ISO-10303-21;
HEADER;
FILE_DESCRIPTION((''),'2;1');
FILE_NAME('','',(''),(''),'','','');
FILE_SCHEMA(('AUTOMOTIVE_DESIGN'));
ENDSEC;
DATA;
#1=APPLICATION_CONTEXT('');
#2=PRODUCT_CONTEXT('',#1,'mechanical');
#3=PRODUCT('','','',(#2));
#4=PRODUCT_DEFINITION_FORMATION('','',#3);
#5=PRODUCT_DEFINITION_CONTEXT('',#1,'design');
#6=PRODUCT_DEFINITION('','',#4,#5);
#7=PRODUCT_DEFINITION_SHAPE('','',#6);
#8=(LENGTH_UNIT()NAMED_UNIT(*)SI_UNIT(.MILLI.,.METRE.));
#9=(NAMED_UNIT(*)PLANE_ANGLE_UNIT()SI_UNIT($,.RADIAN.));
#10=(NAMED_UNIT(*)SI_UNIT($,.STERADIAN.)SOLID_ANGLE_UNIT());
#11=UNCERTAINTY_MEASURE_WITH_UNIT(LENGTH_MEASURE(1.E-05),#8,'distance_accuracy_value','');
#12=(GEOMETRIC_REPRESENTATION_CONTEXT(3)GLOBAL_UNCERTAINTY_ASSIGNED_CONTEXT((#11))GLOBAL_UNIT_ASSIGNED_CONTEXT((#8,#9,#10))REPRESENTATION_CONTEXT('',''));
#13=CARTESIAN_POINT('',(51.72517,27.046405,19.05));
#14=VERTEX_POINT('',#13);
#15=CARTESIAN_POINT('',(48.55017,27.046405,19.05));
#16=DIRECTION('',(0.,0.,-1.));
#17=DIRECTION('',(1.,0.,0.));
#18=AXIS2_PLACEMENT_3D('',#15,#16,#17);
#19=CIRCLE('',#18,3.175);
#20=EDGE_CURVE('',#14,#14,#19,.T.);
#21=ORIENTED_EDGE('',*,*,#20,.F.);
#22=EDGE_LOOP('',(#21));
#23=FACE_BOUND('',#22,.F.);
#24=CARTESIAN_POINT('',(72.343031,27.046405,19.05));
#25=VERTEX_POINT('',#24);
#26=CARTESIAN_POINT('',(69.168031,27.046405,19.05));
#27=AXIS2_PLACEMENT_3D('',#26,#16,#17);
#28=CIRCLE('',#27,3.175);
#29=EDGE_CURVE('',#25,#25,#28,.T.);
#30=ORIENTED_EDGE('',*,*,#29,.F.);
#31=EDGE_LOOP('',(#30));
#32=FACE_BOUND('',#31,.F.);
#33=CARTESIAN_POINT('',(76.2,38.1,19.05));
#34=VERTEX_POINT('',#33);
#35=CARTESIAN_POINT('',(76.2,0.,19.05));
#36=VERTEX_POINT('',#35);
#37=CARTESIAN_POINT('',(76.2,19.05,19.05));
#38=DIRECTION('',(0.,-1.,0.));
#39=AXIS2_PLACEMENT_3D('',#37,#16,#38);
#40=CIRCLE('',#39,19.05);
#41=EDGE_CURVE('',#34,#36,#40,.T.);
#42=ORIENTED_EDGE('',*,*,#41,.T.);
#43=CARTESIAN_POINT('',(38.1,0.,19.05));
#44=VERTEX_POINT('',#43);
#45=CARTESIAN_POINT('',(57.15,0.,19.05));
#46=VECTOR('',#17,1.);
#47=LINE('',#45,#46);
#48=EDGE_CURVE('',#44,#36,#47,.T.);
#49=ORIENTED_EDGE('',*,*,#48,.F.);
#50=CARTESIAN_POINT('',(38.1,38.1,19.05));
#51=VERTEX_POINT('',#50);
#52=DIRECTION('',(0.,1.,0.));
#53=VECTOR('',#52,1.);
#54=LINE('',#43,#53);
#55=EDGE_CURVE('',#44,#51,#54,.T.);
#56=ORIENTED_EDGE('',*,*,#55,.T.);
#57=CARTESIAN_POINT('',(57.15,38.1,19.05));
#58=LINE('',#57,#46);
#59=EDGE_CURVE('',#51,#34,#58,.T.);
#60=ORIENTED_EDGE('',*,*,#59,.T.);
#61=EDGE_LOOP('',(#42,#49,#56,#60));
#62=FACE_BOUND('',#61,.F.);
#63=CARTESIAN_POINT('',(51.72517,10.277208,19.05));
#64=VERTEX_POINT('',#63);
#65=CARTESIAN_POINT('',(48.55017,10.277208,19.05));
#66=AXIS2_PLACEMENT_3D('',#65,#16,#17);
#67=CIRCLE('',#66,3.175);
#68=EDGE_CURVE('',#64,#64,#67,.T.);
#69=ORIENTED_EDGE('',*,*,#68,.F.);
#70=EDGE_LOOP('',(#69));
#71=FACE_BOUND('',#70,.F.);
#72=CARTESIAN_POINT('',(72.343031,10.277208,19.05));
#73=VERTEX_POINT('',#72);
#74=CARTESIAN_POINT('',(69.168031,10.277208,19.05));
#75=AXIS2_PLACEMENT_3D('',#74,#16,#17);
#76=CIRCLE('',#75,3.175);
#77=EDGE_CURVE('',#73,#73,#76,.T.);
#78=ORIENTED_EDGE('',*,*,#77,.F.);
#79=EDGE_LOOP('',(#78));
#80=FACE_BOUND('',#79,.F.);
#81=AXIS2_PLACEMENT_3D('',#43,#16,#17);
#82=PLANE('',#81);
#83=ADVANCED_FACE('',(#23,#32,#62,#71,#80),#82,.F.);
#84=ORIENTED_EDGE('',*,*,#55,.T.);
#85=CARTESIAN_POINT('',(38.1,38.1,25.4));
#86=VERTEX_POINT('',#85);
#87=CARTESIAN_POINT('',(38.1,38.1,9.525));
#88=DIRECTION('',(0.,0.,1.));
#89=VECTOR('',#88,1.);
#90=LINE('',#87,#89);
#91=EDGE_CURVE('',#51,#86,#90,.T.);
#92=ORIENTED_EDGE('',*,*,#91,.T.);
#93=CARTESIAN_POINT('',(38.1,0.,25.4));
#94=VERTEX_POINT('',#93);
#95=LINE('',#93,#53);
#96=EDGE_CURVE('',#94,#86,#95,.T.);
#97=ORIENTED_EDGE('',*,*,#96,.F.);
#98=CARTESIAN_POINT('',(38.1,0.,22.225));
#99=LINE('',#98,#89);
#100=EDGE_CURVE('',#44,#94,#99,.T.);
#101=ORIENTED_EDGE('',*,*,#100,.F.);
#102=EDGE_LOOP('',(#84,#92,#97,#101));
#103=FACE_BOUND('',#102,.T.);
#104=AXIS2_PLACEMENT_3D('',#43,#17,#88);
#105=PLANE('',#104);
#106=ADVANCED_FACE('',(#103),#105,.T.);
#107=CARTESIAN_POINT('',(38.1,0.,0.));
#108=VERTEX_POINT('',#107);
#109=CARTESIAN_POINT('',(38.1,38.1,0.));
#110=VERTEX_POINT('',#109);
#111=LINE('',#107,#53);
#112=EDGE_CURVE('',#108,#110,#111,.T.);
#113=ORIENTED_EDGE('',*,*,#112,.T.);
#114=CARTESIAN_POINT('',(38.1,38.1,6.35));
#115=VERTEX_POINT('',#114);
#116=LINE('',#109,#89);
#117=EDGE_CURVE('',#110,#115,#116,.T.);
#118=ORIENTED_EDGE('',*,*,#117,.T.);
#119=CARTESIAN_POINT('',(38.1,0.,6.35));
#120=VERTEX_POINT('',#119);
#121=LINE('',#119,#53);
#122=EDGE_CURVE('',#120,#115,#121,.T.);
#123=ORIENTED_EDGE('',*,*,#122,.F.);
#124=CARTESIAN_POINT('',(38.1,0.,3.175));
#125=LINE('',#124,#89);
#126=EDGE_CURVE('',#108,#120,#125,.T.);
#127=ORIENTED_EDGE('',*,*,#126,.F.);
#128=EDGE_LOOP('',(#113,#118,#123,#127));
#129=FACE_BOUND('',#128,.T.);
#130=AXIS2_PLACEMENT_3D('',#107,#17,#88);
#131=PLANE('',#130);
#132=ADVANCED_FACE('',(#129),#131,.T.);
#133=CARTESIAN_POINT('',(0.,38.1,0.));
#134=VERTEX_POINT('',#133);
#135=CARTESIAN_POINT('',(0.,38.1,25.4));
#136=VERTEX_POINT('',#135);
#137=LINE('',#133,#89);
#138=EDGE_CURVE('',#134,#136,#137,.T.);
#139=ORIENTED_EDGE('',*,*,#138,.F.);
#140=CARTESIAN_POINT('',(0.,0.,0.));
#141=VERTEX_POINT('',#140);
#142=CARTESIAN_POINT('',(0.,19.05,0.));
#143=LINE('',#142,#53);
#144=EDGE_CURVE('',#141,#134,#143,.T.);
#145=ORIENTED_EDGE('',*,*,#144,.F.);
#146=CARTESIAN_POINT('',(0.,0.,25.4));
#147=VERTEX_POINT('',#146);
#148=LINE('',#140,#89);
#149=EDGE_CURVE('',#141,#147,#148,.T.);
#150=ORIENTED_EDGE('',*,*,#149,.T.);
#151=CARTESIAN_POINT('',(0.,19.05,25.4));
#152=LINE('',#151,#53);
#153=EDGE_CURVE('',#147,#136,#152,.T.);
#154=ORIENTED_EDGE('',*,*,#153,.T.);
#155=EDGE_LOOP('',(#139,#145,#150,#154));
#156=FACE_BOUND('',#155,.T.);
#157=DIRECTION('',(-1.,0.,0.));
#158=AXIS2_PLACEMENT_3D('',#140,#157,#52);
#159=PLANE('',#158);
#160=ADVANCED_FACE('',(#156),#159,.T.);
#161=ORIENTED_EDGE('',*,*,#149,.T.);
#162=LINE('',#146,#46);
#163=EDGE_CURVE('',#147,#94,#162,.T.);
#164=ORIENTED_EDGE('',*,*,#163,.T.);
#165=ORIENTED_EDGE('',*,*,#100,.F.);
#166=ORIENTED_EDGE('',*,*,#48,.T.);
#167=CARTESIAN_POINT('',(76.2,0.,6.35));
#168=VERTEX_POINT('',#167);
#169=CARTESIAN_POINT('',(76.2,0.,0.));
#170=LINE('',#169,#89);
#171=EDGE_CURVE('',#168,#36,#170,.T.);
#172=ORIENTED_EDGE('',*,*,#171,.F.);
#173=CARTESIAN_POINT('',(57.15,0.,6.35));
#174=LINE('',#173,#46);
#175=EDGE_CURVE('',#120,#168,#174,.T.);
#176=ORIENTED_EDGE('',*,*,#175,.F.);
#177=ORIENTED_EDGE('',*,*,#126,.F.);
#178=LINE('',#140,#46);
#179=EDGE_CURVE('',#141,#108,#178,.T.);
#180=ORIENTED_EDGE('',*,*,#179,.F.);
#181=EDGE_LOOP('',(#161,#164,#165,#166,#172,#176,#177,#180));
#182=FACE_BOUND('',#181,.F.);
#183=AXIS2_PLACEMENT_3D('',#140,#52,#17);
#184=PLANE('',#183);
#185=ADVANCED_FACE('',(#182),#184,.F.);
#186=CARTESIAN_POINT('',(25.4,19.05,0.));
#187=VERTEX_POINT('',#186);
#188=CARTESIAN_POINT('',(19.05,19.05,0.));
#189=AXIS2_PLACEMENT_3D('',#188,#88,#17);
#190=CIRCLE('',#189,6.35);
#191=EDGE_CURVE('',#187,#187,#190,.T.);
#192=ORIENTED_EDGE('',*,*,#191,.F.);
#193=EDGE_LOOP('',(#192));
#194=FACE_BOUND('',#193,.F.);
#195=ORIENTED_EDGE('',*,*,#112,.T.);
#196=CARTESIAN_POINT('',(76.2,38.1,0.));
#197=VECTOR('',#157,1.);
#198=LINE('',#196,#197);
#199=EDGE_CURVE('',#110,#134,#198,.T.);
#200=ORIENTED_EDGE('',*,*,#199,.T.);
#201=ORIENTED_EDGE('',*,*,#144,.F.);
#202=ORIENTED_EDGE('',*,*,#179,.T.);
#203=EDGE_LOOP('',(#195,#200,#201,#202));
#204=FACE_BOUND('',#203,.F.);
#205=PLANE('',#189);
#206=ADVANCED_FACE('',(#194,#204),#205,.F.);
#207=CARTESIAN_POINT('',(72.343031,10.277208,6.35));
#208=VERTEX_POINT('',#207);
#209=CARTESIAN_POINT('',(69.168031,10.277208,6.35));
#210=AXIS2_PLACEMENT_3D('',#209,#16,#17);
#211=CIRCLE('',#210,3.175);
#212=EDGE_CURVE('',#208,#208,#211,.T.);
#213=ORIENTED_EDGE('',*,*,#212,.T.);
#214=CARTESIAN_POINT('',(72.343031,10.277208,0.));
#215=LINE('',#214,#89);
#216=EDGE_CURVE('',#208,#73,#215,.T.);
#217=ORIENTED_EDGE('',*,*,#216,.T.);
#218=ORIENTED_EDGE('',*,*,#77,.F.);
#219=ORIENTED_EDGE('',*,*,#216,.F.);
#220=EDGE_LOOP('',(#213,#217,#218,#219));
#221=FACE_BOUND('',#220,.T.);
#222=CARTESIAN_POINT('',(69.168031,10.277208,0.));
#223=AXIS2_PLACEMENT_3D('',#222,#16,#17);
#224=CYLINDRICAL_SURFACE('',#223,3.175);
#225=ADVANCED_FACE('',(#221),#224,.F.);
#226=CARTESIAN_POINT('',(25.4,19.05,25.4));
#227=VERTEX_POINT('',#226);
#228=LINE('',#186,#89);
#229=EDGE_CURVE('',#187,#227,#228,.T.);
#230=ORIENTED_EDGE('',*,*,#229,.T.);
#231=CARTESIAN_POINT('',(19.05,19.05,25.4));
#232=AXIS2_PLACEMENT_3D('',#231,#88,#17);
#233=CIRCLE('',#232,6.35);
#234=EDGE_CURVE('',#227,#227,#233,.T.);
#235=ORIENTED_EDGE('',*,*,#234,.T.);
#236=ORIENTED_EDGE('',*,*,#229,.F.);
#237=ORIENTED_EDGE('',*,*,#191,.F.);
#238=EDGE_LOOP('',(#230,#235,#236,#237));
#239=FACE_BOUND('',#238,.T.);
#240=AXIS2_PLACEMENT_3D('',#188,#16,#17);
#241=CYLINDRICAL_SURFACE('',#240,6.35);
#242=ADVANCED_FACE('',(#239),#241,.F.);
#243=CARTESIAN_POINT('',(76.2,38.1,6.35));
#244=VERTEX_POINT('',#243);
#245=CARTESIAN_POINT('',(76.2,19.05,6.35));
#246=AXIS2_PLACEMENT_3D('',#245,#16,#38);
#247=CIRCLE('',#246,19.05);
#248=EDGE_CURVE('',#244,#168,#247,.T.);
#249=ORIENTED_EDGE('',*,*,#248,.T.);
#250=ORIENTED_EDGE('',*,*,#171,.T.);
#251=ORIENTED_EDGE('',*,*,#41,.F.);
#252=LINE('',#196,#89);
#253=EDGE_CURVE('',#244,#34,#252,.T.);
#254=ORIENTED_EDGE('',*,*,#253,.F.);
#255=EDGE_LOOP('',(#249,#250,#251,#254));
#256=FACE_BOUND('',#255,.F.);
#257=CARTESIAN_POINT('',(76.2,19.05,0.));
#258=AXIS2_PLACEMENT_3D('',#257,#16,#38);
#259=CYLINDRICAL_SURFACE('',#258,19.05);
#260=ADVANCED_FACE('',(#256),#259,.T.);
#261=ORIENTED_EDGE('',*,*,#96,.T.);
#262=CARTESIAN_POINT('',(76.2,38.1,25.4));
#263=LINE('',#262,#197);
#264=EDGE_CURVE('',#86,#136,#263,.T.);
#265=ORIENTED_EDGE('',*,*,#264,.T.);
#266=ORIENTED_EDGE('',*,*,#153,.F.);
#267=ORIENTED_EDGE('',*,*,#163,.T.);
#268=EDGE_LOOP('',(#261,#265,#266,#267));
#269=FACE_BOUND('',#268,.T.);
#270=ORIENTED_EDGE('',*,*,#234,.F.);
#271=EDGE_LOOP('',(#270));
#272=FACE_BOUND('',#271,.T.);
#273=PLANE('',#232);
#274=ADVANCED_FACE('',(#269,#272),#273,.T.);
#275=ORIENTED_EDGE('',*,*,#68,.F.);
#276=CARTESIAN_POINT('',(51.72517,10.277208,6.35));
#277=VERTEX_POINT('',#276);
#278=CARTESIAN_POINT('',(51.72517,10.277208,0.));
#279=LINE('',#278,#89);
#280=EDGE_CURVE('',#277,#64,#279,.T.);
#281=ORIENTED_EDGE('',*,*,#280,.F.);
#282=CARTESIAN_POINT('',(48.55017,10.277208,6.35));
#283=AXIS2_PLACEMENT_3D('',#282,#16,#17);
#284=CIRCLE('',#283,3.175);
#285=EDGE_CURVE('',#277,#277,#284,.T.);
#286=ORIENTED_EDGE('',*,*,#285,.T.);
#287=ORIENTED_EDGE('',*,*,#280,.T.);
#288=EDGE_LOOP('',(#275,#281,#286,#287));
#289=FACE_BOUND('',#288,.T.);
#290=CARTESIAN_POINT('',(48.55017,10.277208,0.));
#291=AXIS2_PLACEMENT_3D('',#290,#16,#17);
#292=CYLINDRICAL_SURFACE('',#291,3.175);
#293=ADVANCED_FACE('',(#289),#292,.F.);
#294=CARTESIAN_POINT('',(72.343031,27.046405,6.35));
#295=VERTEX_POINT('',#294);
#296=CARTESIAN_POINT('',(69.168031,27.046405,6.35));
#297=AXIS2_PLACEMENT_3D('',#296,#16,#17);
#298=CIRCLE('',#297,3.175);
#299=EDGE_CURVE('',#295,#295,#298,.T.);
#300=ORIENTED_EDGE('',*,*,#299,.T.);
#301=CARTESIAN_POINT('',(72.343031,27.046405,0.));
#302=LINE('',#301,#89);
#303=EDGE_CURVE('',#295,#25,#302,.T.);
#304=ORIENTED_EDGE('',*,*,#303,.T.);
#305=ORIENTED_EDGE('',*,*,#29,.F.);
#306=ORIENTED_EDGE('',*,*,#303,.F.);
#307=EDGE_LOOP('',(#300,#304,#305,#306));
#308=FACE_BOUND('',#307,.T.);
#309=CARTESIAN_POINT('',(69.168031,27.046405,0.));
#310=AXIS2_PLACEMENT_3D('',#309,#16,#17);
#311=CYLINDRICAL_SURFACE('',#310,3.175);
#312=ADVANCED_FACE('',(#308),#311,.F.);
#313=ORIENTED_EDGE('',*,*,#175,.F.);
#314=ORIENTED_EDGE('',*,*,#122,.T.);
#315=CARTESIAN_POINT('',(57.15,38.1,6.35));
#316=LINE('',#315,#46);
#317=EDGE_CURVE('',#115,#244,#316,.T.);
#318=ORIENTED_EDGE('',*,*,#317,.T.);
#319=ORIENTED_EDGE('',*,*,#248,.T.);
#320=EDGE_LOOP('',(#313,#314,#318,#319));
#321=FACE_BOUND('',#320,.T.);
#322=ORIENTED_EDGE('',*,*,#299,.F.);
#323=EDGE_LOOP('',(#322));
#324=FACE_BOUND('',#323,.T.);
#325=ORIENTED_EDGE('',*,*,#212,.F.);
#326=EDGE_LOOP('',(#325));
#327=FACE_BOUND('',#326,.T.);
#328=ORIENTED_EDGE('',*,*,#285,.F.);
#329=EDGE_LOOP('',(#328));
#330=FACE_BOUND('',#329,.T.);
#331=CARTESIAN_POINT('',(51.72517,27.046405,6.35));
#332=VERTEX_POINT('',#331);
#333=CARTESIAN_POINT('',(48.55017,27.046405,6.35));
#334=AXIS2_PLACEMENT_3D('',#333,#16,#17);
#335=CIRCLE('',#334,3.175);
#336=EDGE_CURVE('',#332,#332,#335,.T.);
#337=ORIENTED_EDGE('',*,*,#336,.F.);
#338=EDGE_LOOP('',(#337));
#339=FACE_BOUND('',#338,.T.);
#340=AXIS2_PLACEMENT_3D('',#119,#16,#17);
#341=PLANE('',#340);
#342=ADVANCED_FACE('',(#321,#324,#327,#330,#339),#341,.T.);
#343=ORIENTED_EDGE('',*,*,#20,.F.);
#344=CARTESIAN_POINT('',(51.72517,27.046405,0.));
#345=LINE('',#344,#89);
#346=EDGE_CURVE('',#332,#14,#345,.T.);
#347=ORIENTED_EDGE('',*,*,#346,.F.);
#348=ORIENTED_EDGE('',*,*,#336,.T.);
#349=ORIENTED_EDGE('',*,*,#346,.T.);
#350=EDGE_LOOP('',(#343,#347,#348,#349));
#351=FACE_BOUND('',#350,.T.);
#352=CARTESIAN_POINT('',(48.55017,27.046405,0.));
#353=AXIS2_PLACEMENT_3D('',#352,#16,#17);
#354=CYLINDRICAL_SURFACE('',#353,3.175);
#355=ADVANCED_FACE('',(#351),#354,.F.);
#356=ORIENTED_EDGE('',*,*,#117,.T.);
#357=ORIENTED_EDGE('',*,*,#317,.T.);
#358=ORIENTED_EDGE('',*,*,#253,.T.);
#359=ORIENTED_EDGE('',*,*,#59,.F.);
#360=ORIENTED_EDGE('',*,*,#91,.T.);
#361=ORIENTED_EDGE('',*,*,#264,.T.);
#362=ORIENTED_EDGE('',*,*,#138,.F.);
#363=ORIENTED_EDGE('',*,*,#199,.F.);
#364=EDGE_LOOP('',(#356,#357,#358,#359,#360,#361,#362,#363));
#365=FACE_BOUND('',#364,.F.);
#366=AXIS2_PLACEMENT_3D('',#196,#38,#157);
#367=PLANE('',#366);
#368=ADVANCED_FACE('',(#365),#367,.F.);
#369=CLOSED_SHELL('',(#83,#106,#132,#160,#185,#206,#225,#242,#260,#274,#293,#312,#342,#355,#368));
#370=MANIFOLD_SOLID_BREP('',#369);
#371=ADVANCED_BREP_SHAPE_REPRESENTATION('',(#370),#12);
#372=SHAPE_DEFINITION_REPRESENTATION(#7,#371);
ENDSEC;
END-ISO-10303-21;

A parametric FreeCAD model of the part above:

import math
import FreeCAD as App
import Part
import Sketcher

V = App.Vector
Q = App.Units.Quantity

doc = App.newDocument("Part")
params = doc.addObject("Spreadsheet::Sheet", "Params")
for row, (alias, value) in enumerate([
    ("sketch1_diameter", "0.5 in"),
    ("sketch1_diameter2", "0.25 in"),
    ("sketch1_width", "3 in"),
    ("sketch1_radius", "0.75 in"),
    ("pad1_length", "1 in"),
    ("sketch2_width", "1.5 in"),
    ("sketch2_height", "0.25 in"),
    ("sketch3_height", "0.25 in"),
], start=1):
    params.set(f"A{row}", alias)
    params.set(f"B{row}", "=" + value)
    params.setAlias(f"B{row}", alias)

body = doc.addObject("PartDesign::Body", "Body")

# Sketch on XY plane
sketch1 = body.newObject("Sketcher::SketchObject", "Sketch")
sketch1.AttachmentSupport = (doc.getObject("XY_Plane"), [""])
sketch1.MapMode = "FlatFace"
sketch1.addGeometry(Part.LineSegment(V(0, 38.1, 0), V(0, 0, 0)), False)
sketch1.addGeometry(Part.LineSegment(V(0, 0, 0), V(76.2, 0, 0)), False)
sketch1.addGeometry(Part.ArcOfCircle(Part.Circle(V(76.2, 19.05, 0), V(0, 0, 1), 19.05), math.radians(-90), math.radians(90)), False)
sketch1.addGeometry(Part.LineSegment(V(76.2, 38.1, 0), V(0, 38.1, 0)), False)
sketch1.addGeometry(Part.Circle(V(48.55017, 10.277208, 0), V(0, 0, 1), 3.175), False)
sketch1.addGeometry(Part.Circle(V(69.168031, 10.277208, 0), V(0, 0, 1), 3.175), False)
sketch1.addGeometry(Part.Circle(V(19.05, 19.05, 0), V(0, 0, 1), 6.35), False)
sketch1.addGeometry(Part.Circle(V(48.55017, 27.046405, 0), V(0, 0, 1), 3.175), False)
sketch1.addGeometry(Part.Circle(V(69.168031, 27.046405, 0), V(0, 0, 1), 3.175), False)
sketch1.addConstraint(Sketcher.Constraint("Coincident", 0, 2, 1, 1))
sketch1.addConstraint(Sketcher.Constraint("Tangent", 1, 2, 2, 1))
sketch1.addConstraint(Sketcher.Constraint("Tangent", 2, 2, 3, 1))
sketch1.addConstraint(Sketcher.Constraint("Coincident", 3, 2, 0, 1))
sketch1.addConstraint(Sketcher.Constraint("Vertical", 0))
sketch1.addConstraint(Sketcher.Constraint("Horizontal", 1))
sketch1.addConstraint(Sketcher.Constraint("Horizontal", 3))
sketch1.addConstraint(Sketcher.Constraint("Coincident", 0, 2, -1, 1))
sketch1.addConstraint(Sketcher.Constraint("Equal", 4, 5))
sketch1.addConstraint(Sketcher.Constraint("Equal", 5, 7))
sketch1.addConstraint(Sketcher.Constraint("Equal", 7, 8))
sketch1.addConstraint(Sketcher.Constraint("Horizontal", 4, 3, 5, 3))
sketch1.addConstraint(Sketcher.Constraint("Horizontal", 2, 3, 6, 3))
sketch1.addConstraint(Sketcher.Constraint("Horizontal", 7, 3, 8, 3))
sketch1.addConstraint(Sketcher.Constraint("Vertical", 4, 3, 7, 3))
sketch1.addConstraint(Sketcher.Constraint("Vertical", 5, 3, 8, 3))
sketch1.addConstraint(Sketcher.Constraint("Diameter", 6, Q("0.5 in")))
sketch1.addConstraint(Sketcher.Constraint("Diameter", 4, Q("0.25 in")))
sketch1.addConstraint(Sketcher.Constraint("DistanceX", 1, 1, 1, 2, Q("3 in")))
sketch1.addConstraint(Sketcher.Constraint("Radius", 2, Q("0.75 in")))
sketch1.addConstraint(Sketcher.Constraint("DistanceX", -1, 1, 6, 3, Q("0.75 in")))
sketch1.addConstraint(Sketcher.Constraint("DistanceX", -1, 1, 4, 3, Q("48.55017 mm")))
sketch1.addConstraint(Sketcher.Constraint("DistanceX", -1, 1, 5, 3, Q("69.168031 mm")))
sketch1.addConstraint(Sketcher.Constraint("DistanceY", 5, 3, 2, 2, Q("27.822792 mm")))
sketch1.addConstraint(Sketcher.Constraint("DistanceY", -1, 1, 7, 3, Q("27.046405 mm")))
sketch1.setExpression("Constraints[16]", "Params.sketch1_diameter")
sketch1.setExpression("Constraints[17]", "Params.sketch1_diameter2")
sketch1.setExpression("Constraints[18]", "Params.sketch1_width")
sketch1.setExpression("Constraints[19]", "Params.sketch1_radius")
pad1 = body.newObject("PartDesign::Pad", "Pad")
pad1.Profile = sketch1
pad1.setExpression("Length", "Params.pad1_length")

# Sketch on XZ plane
sketch2 = body.newObject("Sketcher::SketchObject", "Sketch001")
sketch2.AttachmentSupport = (doc.getObject("XZ_Plane"), [""])
sketch2.MapMode = "FlatFace"
sketch2.addGeometry(Part.LineSegment(V(38.1, 25.4, 0), V(38.1, 19.05, 0)), False)
sketch2.addGeometry(Part.LineSegment(V(38.1, 19.05, 0), V(76.2, 19.05, 0)), False)
sketch2.addGeometry(Part.LineSegment(V(76.2, 19.05, 0), V(76.2, 25.4, 0)), False)
sketch2.addGeometry(Part.LineSegment(V(76.2, 25.4, 0), V(38.1, 25.4, 0)), False)
sketch2.addGeometry(Part.LineSegment(V(38.1, 6.35, 0), V(38.1, 0, 0)), False)
sketch2.addGeometry(Part.LineSegment(V(38.1, 0, 0), V(76.2, 0, 0)), False)
sketch2.addGeometry(Part.LineSegment(V(76.2, 0, 0), V(76.2, 6.35, 0)), False)
sketch2.addGeometry(Part.LineSegment(V(76.2, 6.35, 0), V(38.1, 6.35, 0)), False)
sketch2.addConstraint(Sketcher.Constraint("Coincident", 0, 2, 1, 1))
sketch2.addConstraint(Sketcher.Constraint("Coincident", 1, 2, 2, 1))
sketch2.addConstraint(Sketcher.Constraint("Coincident", 2, 2, 3, 1))
sketch2.addConstraint(Sketcher.Constraint("Coincident", 3, 2, 0, 1))
sketch2.addConstraint(Sketcher.Constraint("Coincident", 4, 2, 5, 1))
sketch2.addConstraint(Sketcher.Constraint("Coincident", 5, 2, 6, 1))
sketch2.addConstraint(Sketcher.Constraint("Coincident", 6, 2, 7, 1))
sketch2.addConstraint(Sketcher.Constraint("Coincident", 7, 2, 4, 1))
sketch2.addConstraint(Sketcher.Constraint("Vertical", 0))
sketch2.addConstraint(Sketcher.Constraint("Horizontal", 1))
sketch2.addConstraint(Sketcher.Constraint("Vertical", 2))
sketch2.addConstraint(Sketcher.Constraint("Horizontal", 3))
sketch2.addConstraint(Sketcher.Constraint("Vertical", 4))
sketch2.addConstraint(Sketcher.Constraint("Horizontal", 5))
sketch2.addConstraint(Sketcher.Constraint("Vertical", 6))
sketch2.addConstraint(Sketcher.Constraint("Horizontal", 7))
sketch2.addConstraint(Sketcher.Constraint("PointOnObject", 4, 2, -1))
sketch2.addConstraint(Sketcher.Constraint("Vertical", 3, 2, 4, 2))
sketch2.addConstraint(Sketcher.Constraint("Vertical", 2, 2, 5, 2))
sketch2.addConstraint(Sketcher.Constraint("Equal", 2, 4))
sketch2.addConstraint(Sketcher.Constraint("DistanceX", 1, 1, 1, 2, Q("1.5 in")))
sketch2.addConstraint(Sketcher.Constraint("DistanceX", -1, 1, 1, 2, Q("3 in")))
sketch2.addConstraint(Sketcher.Constraint("DistanceY", -1, 1, 2, 2, Q("1 in")))
sketch2.addConstraint(Sketcher.Constraint("DistanceY", 0, 2, 0, 1, Q("0.25 in")))
sketch2.setExpression("Constraints[20]", "Params.sketch2_width")
sketch2.setExpression("Constraints[23]", "Params.sketch2_height")
pocket1 = body.newObject("PartDesign::Pocket", "Pocket")
pocket1.Profile = sketch2
pocket1.Type = "ThroughAll"

# Sketch on XZ plane
sketch3 = body.newObject("Sketcher::SketchObject", "Sketch002")
sketch3.AttachmentSupport = (doc.getObject("XZ_Plane"), [""])
sketch3.MapMode = "FlatFace"
sketch3.addGeometry(Part.LineSegment(V(76.2, 25.503032, 0), V(76.2, 19.05, 0)), False)
sketch3.addGeometry(Part.LineSegment(V(76.2, 19.05, 0), V(95.365852, 19.05, 0)), False)
sketch3.addGeometry(Part.LineSegment(V(95.365852, 19.05, 0), V(95.365852, 25.503032, 0)), False)
sketch3.addGeometry(Part.LineSegment(V(95.365852, 25.503032, 0), V(76.2, 25.503032, 0)), False)
sketch3.addGeometry(Part.LineSegment(V(76.2, 6.35, 0), V(76.2, 0, 0)), False)
sketch3.addGeometry(Part.LineSegment(V(76.2, 0, 0), V(95.365852, 0, 0)), False)
sketch3.addGeometry(Part.LineSegment(V(95.365852, 0, 0), V(95.365852, 6.35, 0)), False)
sketch3.addGeometry(Part.LineSegment(V(95.365852, 6.35, 0), V(76.2, 6.35, 0)), False)
sketch3.addConstraint(Sketcher.Constraint("Coincident", 0, 2, 1, 1))
sketch3.addConstraint(Sketcher.Constraint("Coincident", 1, 2, 2, 1))
sketch3.addConstraint(Sketcher.Constraint("Coincident", 2, 2, 3, 1))
sketch3.addConstraint(Sketcher.Constraint("Coincident", 3, 2, 0, 1))
sketch3.addConstraint(Sketcher.Constraint("Coincident", 4, 2, 5, 1))
sketch3.addConstraint(Sketcher.Constraint("Coincident", 5, 2, 6, 1))
sketch3.addConstraint(Sketcher.Constraint("Coincident", 6, 2, 7, 1))
sketch3.addConstraint(Sketcher.Constraint("Coincident", 7, 2, 4, 1))
sketch3.addConstraint(Sketcher.Constraint("Vertical", 0))
sketch3.addConstraint(Sketcher.Constraint("Horizontal", 1))
sketch3.addConstraint(Sketcher.Constraint("Vertical", 2))
sketch3.addConstraint(Sketcher.Constraint("Horizontal", 3))
sketch3.addConstraint(Sketcher.Constraint("Vertical", 4))
sketch3.addConstraint(Sketcher.Constraint("Horizontal", 5))
sketch3.addConstraint(Sketcher.Constraint("Vertical", 6))
sketch3.addConstraint(Sketcher.Constraint("Horizontal", 7))
sketch3.addConstraint(Sketcher.Constraint("PointOnObject", 4, 2, -1))
sketch3.addConstraint(Sketcher.Constraint("Vertical", 3, 2, 4, 2))
sketch3.addConstraint(Sketcher.Constraint("Vertical", 2, 2, 5, 2))
sketch3.addConstraint(Sketcher.Constraint("DistanceX", -1, 1, 0, 2, Q("3 in")))
sketch3.addConstraint(Sketcher.Constraint("DistanceY", 4, 2, 4, 1, Q("0.25 in")))
sketch3.addConstraint(Sketcher.Constraint("DistanceY", 6, 2, 1, 2, Q("0.5 in")))
sketch3.addConstraint(Sketcher.Constraint("DistanceX", 1, 1, 1, 2, Q("19.165852 mm")))
sketch3.addConstraint(Sketcher.Constraint("DistanceY", 0, 2, 0, 1, Q("6.453032 mm")))
sketch3.setExpression("Constraints[20]", "Params.sketch3_height")
pocket2 = body.newObject("PartDesign::Pocket", "Pocket001")
pocket2.Profile = sketch3
pocket2.Type = "ThroughAll"

doc.recompute()
